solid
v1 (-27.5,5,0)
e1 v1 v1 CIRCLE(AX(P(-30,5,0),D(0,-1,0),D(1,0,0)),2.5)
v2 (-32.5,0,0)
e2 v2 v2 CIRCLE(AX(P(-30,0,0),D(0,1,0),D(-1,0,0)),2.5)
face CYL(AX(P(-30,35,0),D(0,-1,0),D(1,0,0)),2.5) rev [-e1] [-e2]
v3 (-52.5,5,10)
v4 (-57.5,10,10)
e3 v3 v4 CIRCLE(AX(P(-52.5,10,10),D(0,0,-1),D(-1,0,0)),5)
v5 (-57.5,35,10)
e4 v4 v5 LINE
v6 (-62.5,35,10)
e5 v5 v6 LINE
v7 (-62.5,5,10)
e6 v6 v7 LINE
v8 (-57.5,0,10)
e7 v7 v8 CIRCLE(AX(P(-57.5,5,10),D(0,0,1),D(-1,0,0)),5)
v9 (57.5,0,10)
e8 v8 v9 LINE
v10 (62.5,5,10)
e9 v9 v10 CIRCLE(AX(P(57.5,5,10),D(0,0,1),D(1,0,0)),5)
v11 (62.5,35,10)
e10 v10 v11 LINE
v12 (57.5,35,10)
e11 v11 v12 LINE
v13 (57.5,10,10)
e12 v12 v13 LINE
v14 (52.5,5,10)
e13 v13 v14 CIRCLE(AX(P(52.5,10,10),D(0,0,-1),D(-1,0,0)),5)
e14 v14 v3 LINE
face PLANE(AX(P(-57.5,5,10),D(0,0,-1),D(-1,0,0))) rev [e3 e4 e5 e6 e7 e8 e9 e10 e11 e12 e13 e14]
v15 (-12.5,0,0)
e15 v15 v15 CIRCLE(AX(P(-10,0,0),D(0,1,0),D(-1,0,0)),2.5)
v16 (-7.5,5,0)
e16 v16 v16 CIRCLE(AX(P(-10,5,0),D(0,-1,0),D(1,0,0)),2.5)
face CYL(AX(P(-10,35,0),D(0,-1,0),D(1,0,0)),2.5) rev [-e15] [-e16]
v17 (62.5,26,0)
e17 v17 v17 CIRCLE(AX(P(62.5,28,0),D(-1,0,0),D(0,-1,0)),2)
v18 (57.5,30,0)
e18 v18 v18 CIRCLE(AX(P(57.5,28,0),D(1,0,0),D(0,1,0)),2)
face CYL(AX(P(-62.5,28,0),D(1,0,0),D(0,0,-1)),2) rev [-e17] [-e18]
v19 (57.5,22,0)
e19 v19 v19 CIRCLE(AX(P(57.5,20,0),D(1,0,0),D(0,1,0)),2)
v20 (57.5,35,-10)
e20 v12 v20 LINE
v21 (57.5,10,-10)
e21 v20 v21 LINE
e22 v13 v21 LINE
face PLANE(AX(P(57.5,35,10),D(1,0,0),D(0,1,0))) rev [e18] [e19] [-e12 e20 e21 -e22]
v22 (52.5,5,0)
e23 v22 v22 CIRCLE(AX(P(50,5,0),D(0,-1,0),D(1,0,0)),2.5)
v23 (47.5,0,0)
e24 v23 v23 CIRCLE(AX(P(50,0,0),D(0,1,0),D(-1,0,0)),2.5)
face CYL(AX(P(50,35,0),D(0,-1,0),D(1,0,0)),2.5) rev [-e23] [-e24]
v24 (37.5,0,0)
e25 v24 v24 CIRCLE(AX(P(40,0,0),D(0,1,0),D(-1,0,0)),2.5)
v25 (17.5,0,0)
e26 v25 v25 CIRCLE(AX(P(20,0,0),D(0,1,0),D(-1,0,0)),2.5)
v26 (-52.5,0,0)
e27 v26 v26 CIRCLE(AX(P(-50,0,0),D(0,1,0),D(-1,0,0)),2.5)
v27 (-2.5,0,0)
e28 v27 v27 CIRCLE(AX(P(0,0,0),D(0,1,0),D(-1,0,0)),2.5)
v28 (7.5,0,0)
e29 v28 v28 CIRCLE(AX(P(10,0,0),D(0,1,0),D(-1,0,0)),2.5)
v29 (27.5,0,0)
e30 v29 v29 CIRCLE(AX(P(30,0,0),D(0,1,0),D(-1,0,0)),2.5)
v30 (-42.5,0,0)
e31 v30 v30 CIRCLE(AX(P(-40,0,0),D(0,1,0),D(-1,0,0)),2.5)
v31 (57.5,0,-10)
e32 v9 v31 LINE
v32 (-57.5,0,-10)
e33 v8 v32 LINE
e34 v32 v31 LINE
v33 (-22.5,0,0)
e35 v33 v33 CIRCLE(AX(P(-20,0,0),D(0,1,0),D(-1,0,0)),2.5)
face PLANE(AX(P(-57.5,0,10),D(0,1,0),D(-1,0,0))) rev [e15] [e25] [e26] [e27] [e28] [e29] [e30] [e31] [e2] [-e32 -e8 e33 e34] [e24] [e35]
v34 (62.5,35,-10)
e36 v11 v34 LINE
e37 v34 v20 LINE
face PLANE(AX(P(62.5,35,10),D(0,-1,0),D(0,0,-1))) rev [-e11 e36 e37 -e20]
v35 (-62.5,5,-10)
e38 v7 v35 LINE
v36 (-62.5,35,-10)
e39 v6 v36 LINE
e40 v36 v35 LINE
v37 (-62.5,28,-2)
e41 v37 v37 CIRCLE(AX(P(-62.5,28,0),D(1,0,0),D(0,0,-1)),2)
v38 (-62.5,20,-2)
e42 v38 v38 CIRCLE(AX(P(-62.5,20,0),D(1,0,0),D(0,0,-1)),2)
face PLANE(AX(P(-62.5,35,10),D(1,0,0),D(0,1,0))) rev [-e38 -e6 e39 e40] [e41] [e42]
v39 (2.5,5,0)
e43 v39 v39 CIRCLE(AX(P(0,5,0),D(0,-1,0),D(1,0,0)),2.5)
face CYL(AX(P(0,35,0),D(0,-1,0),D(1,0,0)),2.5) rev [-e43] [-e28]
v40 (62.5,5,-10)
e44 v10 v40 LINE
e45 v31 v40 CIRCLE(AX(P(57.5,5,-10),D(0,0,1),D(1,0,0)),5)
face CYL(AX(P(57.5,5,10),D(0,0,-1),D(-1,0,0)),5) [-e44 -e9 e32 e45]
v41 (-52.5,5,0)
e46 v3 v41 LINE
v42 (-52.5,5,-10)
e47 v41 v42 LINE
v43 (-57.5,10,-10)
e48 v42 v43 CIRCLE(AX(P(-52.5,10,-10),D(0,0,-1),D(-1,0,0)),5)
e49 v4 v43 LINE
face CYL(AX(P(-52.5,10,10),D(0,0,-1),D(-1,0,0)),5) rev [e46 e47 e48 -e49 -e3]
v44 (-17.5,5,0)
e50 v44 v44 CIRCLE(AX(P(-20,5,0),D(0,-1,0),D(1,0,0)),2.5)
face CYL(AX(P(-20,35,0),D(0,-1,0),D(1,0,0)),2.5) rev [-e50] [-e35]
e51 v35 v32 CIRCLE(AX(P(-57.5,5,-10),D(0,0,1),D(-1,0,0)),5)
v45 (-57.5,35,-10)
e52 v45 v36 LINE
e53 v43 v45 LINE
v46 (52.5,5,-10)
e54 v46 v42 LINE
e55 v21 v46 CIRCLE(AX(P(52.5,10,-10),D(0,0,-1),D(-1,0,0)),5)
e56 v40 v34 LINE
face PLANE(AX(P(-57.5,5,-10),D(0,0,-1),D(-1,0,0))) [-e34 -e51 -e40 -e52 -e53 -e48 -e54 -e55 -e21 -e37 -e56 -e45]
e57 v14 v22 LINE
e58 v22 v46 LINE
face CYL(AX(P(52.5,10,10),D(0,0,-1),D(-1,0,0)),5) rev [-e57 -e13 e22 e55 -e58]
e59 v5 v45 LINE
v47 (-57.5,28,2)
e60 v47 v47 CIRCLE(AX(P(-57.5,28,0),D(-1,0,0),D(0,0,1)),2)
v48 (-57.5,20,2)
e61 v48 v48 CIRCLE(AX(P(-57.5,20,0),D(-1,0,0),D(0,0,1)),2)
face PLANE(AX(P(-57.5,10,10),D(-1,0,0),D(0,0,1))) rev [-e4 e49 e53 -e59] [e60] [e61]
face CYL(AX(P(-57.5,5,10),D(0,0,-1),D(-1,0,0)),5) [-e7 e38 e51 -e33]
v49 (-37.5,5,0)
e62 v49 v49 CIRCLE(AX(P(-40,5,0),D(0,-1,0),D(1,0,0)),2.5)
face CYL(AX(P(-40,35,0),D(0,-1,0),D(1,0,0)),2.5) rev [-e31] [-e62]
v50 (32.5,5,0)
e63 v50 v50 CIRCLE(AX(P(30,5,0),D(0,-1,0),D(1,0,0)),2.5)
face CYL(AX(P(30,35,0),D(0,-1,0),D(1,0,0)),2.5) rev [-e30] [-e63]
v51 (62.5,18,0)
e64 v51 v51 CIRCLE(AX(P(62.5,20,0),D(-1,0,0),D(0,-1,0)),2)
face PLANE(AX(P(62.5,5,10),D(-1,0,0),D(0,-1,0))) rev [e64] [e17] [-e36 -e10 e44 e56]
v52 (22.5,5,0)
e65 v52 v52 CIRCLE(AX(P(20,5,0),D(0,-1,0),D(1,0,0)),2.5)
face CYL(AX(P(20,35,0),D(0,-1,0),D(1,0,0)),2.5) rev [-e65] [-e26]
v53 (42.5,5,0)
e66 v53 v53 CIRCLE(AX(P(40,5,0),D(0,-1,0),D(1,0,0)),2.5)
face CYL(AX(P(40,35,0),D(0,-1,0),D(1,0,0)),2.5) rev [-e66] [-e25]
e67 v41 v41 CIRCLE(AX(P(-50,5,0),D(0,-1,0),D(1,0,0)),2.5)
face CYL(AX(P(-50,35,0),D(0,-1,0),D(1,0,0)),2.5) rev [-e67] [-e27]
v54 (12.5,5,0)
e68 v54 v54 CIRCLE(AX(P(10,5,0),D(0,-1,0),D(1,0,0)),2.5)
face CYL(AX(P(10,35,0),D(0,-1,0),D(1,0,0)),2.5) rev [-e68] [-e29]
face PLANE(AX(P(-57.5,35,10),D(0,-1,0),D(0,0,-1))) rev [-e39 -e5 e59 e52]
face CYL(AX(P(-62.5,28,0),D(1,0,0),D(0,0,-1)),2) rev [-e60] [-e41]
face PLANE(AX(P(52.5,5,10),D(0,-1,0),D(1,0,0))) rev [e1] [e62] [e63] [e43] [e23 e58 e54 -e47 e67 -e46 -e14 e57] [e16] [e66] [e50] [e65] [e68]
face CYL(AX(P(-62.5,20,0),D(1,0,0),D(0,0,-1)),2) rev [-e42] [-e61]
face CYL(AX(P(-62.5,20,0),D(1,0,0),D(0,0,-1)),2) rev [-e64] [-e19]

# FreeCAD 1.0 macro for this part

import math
import FreeCAD as App
import Part
import Sketcher
from FreeCAD import Vector

doc = App.newDocument("Part")
params = doc.addObject("Spreadsheet::Sheet", "Params")
for row, (alias, value) in enumerate([
    ("sketch1_radius", "5 mm"),
    ("sketch1_width", "115 mm"),
    ("sketch1_height", "30 mm"),
    ("pad1_length", "20 mm"),
    ("sketch2_diameter", "4 mm"),
    ("pocket1_length", "262.384331 mm"),
    ("linearpattern_pitch", "8 mm"),
    ("sketch3_diameter", "5 mm"),
], start=1):
    params.set(f"A{row}", alias)
    params.set(f"B{row}", "=" + value)
    params.setAlias(f"B{row}", alias)

body = doc.addObject("PartDesign::Body", "Body")

sketch1 = body.newObject("Sketcher::SketchObject", "Sketch")
sketch1.AttachmentSupport = (doc.getObject("XY_Plane"), [""])
sketch1.MapMode = "FlatFace"
sketch1.addGeometry([
    Part.LineSegment(Vector(-58, 0, 0), Vector(58, 0, 0)),
    Part.ArcOfCircle(Part.Circle(Vector(58, 5, 0), Vector(0, 0, 1), 5), math.radians(-90), math.radians(0)),
    Part.LineSegment(Vector(62, 5, 0), Vector(62, 35, 0)),
    Part.LineSegment(Vector(62, 35, 0), Vector(58, 35, 0)),
    Part.LineSegment(Vector(58, 35, 0), Vector(58, 10, 0)),
    Part.ArcOfCircle(Part.Circle(Vector(52, 10, 0), Vector(0, 0, 1), 5), math.radians(-90), math.radians(0)),
    Part.LineSegment(Vector(52, 5, 0), Vector(-52, 5, 0)),
    Part.ArcOfCircle(Part.Circle(Vector(-52, 10, 0), Vector(0, 0, 1), 5), math.radians(180), math.radians(270)),
    Part.LineSegment(Vector(-58, 10, 0), Vector(-58, 35, 0)),
    Part.LineSegment(Vector(-58, 35, 0), Vector(-62, 35, 0)),
    Part.LineSegment(Vector(-62, 35, 0), Vector(-62, 5, 0)),
    Part.ArcOfCircle(Part.Circle(Vector(-58, 5, 0), Vector(0, 0, 1), 5), math.radians(180), math.radians(270)),
], False)
sketch1.addConstraint([
    Sketcher.Constraint("Tangent", 0, 2, 1, 1),
    Sketcher.Constraint("Tangent", 1, 2, 2, 1),
    Sketcher.Constraint("Coincident", 2, 2, 3, 1),
    Sketcher.Constraint("Coincident", 3, 2, 4, 1),
    Sketcher.Constraint("Tangent", 4, 2, 5, 2),
    Sketcher.Constraint("Tangent", 5, 1, 6, 1),
    Sketcher.Constraint("Tangent", 6, 2, 7, 2),
    Sketcher.Constraint("Tangent", 7, 1, 8, 1),
    Sketcher.Constraint("Coincident", 8, 2, 9, 1),
    Sketcher.Constraint("Coincident", 9, 2, 10, 1),
    Sketcher.Constraint("Tangent", 10, 2, 11, 1),
    Sketcher.Constraint("Tangent", 11, 2, 0, 1),
    Sketcher.Constraint("Horizontal", 0),
    Sketcher.Constraint("Vertical", 2),
    Sketcher.Constraint("Horizontal", 3),
    Sketcher.Constraint("Vertical", 4),
    Sketcher.Constraint("Horizontal", 6),
    Sketcher.Constraint("Vertical", 8),
    Sketcher.Constraint("Horizontal", 9),
    Sketcher.Constraint("Vertical", 10),
    Sketcher.Constraint("Equal", 1, 5),
    Sketcher.Constraint("Equal", 5, 7),
    Sketcher.Constraint("Equal", 7, 11),
    Sketcher.Constraint("Symmetric", 0, 2, 11, 2, -1, 1),
    Sketcher.Constraint("Symmetric", 3, 2, 8, 2, -2),
    Sketcher.Constraint("Horizontal", 1, 2, 5, 1),
    Sketcher.Constraint("Vertical", 0, 2, 3, 2),
    Sketcher.Constraint("Radius", 1, 5.0),
    Sketcher.Constraint("DistanceX", 0, 1, 0, 2, 115.0),
    Sketcher.Constraint("DistanceY", 2, 1, 2, 2, 30.0),
])
sketch1.setExpression("Constraints[27]", "Params.sketch1_radius")
sketch1.setExpression("Constraints[28]", "Params.sketch1_width")
sketch1.setExpression("Constraints[29]", "Params.sketch1_height")
pad1 = body.newObject("PartDesign::Pad", "Pad")
pad1.Profile = sketch1
pad1.setExpression("Length", "Params.pad1_length")
pad1.Midplane = True

sketch2 = body.newObject("Sketcher::SketchObject", "Sketch001")
sketch2.AttachmentSupport = (doc.getObject("YZ_Plane"), [""])
sketch2.MapMode = "FlatFace"
sketch2.AttachmentOffset = App.Placement(Vector(0, 0, 62.5), App.Rotation())
sketch2.addGeometry(Part.Circle(Vector(20, 0, 0), Vector(0, 0, 1), 2), False)
sketch2.addConstraint([
    Sketcher.Constraint("PointOnObject", 0, 3, -1),
    Sketcher.Constraint("Diameter", 0, 4.0),
    Sketcher.Constraint("DistanceX", -1, 1, 0, 3, 20.0),
])
sketch2.setExpression("Constraints[1]", "Params.sketch2_diameter")
pocket1 = body.newObject("PartDesign::Pocket", "Pocket")
pocket1.Profile = sketch2
pocket1.setExpression("Length", "Params.pocket1_length")
pocket1.Midplane = True
doc.recompute()

linearpattern = body.newObject("PartDesign::LinearPattern", "LinearPattern")
linearpattern.Originals = [pocket1]
linearpattern.Direction = (doc.getObject("Y_Axis"), [""])
linearpattern.Mode = "offset"
linearpattern.setExpression("Offset", "Params.linearpattern_pitch")
linearpattern.Occurrences = 2
body.Tip = linearpattern

sketch3 = body.newObject("Sketcher::SketchObject", "Sketch002")
sketch3.AttachmentSupport = (doc.getObject("XZ_Plane"), [""])
sketch3.MapMode = "FlatFace"
sketch3.addGeometry([
    Part.Circle(Vector(0, 0, 0), Vector(0, 0, 1), 2.5),
    Part.Circle(Vector(-10, 0, 0), Vector(0, 0, 1), 2.5),
    Part.Circle(Vector(-20, 0, 0), Vector(0, 0, 1), 2.5),
    Part.Circle(Vector(-30, 0, 0), Vector(0, 0, 1), 2.5),
    Part.Circle(Vector(-40, 0, 0), Vector(0, 0, 1), 2.5),
    Part.Circle(Vector(-50, 0, 0), Vector(0, 0, 1), 2.5),
    Part.Circle(Vector(10, 0, 0), Vector(0, 0, 1), 2.5),
    Part.Circle(Vector(20, 0, 0), Vector(0, 0, 1), 2.5),
    Part.Circle(Vector(30, 0, 0), Vector(0, 0, 1), 2.5),
    Part.Circle(Vector(40, 0, 0), Vector(0, 0, 1), 2.5),
    Part.Circle(Vector(50, 0, 0), Vector(0, 0, 1), 2.5),
], False)
sketch3.addConstraint([
    Sketcher.Constraint("Coincident", 0, 3, -1, 1),
    Sketcher.Constraint("Equal", 0, 1),
    Sketcher.Constraint("Equal", 1, 2),
    Sketcher.Constraint("Equal", 2, 3),
    Sketcher.Constraint("Equal", 3, 4),
    Sketcher.Constraint("Equal", 4, 5),
    Sketcher.Constraint("Equal", 5, 6),
    Sketcher.Constraint("Equal", 6, 7),
    Sketcher.Constraint("Equal", 7, 8),
    Sketcher.Constraint("Equal", 8, 9),
    Sketcher.Constraint("Equal", 9, 10),
    Sketcher.Constraint("Symmetric", 1, 3, 6, 3, -1, 1),
    Sketcher.Constraint("Symmetric", 2, 3, 7, 3, -1, 1),
    Sketcher.Constraint("Symmetric", 3, 3, 8, 3, -1, 1),
    Sketcher.Constraint("Symmetric", 4, 3, 9, 3, -1, 1),
    Sketcher.Constraint("Symmetric", 5, 3, 10, 3, -1, 1),
    Sketcher.Constraint("PointOnObject", 1, 3, -1),
    Sketcher.Constraint("PointOnObject", 2, 3, -1),
    Sketcher.Constraint("PointOnObject", 3, 3, -1),
    Sketcher.Constraint("PointOnObject", 4, 3, -1),
    Sketcher.Constraint("PointOnObject", 5, 3, -1),
    Sketcher.Constraint("Diameter", 0, 5.0),
    Sketcher.Constraint("DistanceX", 1, 3, -1, 1, 10.0),
    Sketcher.Constraint("DistanceX", 2, 3, -1, 1, 20.0),
    Sketcher.Constraint("DistanceX", 3, 3, -1, 1, 30.0),
    Sketcher.Constraint("DistanceX", 4, 3, -1, 1, 40.0),
    Sketcher.Constraint("DistanceX", 5, 3, -1, 1, 50.0),
])
sketch3.setExpression("Constraints[21]", "Params.sketch3_diameter")
pocket2 = body.newObject("PartDesign::Pocket", "Pocket001")
pocket2.Profile = sketch3
pocket2.Type = "ThroughAll"
pocket2.Midplane = True

doc.recompute()
